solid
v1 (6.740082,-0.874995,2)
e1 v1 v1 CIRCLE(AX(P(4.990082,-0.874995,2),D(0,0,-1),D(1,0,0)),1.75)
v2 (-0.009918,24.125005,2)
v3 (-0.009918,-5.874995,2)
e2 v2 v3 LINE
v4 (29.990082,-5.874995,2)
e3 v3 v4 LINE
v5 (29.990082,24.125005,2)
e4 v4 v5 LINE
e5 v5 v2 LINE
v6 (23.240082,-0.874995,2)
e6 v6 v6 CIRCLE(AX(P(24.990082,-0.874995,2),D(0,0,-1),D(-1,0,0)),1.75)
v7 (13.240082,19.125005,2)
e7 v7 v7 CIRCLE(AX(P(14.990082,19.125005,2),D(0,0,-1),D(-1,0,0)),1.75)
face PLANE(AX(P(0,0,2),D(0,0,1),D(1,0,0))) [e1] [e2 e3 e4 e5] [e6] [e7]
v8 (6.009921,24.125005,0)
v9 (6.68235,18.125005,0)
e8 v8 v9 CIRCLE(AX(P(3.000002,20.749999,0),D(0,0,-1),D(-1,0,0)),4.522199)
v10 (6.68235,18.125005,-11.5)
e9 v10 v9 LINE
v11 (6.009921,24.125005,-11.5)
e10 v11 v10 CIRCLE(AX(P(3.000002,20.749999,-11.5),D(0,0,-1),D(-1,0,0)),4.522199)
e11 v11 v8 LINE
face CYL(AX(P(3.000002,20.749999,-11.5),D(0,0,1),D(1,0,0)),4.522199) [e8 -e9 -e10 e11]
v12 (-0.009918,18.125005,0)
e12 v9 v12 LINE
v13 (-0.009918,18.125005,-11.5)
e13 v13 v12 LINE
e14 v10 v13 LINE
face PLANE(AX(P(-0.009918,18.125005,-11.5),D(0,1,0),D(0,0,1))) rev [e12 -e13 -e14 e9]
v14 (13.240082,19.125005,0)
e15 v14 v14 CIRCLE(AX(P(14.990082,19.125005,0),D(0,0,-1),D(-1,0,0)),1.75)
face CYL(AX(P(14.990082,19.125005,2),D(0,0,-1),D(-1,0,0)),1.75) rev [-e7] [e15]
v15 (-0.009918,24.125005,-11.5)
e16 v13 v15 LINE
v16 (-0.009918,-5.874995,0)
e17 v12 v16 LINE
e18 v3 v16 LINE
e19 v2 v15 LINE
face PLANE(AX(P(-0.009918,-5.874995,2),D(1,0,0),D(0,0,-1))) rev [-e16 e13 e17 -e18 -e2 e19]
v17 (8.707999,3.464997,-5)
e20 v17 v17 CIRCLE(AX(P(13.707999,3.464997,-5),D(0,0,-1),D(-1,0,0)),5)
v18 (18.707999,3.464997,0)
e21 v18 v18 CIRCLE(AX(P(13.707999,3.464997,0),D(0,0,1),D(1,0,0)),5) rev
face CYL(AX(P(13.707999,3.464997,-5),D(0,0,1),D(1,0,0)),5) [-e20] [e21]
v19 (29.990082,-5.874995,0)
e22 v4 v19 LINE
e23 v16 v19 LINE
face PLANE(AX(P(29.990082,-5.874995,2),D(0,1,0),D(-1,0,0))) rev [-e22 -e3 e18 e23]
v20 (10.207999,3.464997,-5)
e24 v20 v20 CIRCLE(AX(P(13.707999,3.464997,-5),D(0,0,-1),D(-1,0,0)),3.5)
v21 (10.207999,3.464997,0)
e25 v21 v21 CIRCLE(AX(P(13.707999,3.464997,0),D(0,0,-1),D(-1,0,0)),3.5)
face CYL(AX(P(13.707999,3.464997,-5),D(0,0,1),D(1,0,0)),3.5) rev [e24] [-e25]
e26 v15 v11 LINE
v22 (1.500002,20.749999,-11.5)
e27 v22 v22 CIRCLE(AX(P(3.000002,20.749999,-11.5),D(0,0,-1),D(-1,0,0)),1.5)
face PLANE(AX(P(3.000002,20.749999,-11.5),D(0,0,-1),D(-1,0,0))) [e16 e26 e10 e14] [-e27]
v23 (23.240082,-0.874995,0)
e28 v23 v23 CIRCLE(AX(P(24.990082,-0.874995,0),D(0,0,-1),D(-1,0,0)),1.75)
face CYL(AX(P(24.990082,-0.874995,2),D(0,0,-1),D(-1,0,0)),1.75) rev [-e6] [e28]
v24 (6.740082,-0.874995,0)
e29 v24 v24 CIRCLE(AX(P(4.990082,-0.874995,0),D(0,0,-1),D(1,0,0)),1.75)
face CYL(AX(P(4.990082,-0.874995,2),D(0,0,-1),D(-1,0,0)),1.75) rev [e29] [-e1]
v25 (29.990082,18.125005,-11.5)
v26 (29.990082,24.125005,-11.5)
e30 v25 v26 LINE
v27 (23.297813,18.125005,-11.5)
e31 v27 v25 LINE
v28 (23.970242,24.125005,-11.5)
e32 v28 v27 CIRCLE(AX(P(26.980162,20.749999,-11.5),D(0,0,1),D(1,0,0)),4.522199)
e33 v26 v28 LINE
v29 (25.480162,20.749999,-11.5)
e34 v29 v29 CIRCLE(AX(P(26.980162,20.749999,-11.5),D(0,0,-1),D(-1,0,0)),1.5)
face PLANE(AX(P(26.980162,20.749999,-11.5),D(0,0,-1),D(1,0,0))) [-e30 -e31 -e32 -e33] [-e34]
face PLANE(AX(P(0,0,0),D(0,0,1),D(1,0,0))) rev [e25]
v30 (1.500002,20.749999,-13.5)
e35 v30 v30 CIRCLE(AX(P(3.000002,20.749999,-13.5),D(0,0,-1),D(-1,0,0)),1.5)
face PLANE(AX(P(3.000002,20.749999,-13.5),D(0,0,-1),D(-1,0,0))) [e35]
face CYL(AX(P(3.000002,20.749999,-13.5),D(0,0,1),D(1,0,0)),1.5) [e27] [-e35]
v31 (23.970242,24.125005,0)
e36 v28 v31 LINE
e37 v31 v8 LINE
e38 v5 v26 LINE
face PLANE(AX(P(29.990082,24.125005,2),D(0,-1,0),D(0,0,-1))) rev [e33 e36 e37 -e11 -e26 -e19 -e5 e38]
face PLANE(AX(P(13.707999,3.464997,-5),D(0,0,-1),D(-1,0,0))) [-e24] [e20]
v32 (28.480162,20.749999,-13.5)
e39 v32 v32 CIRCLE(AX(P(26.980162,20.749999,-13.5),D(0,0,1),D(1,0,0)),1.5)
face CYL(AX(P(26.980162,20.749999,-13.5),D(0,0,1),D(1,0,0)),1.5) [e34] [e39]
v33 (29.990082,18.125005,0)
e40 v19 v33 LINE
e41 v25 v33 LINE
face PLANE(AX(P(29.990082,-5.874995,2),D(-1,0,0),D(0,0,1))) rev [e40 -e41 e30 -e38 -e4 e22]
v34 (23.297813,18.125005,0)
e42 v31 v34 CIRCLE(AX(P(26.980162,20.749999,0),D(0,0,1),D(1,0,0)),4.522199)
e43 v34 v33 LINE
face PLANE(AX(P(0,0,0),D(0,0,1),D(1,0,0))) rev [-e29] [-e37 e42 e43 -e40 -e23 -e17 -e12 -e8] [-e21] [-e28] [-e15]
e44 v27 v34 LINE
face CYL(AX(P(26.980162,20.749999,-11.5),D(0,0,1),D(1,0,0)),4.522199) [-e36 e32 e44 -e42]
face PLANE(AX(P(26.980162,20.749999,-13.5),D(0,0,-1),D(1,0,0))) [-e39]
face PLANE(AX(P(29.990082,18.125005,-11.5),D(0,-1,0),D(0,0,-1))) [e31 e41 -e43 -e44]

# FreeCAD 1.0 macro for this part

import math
import FreeCAD as App
import Part
import Sketcher
from FreeCAD import Vector
Q = App.Units.Quantity

doc = App.newDocument("Part")
params = doc.addObject("Spreadsheet::Sheet", "Params")
for row, (alias, value) in enumerate([
    ("sketch1_width", "30 mm"),
    ("pad1_length", "2 mm"),
    ("sketch2_height", "6 mm"),
    ("pad2_length", "11.5 mm"),
    ("sketch3_diameter", "3 mm"),
    ("pad3_length", "2 mm"),
    ("sketch4_diameter", "10 mm"),
    ("sketch4_diameter2", "7 mm"),
    ("pad4_length", "5 mm"),
    ("sketch5_diameter", "3.5 mm"),
], start=1):
    params.set(f"A{row}", alias)
    params.set(f"B{row}", "=" + value)
    params.setAlias(f"B{row}", alias)

body = doc.addObject("PartDesign::Body", "Body")

# Sketch on XY plane
sketch1 = doc.addObject("Sketcher::SketchObject", "Sketch")
body.addObject(sketch1)
sketch1.AttachmentSupport = (doc.XY_Plane, [""])
sketch1.MapMode = "FlatFace"
sketch1.addGeometry(Part.LineSegment(Vector(0, 24, 0), Vector(0, -6, 0)), False)
sketch1.addGeometry(Part.LineSegment(Vector(0, -6, 0), Vector(30, -6, 0)), False)
sketch1.addGeometry(Part.LineSegment(Vector(30, -6, 0), Vector(30, 24, 0)), False)
sketch1.addGeometry(Part.LineSegment(Vector(30, 24, 0), Vector(0, 24, 0)), False)
sketch1.addConstraint(Sketcher.Constraint("Coincident", 0, 2, 1, 1))
sketch1.addConstraint(Sketcher.Constraint("Coincident", 1, 2, 2, 1))
sketch1.addConstraint(Sketcher.Constraint("Coincident", 2, 2, 3, 1))
sketch1.addConstraint(Sketcher.Constraint("Coincident", 3, 2, 0, 1))
sketch1.addConstraint(Sketcher.Constraint("Vertical", 0))
sketch1.addConstraint(Sketcher.Constraint("Horizontal", 1))
sketch1.addConstraint(Sketcher.Constraint("Vertical", 2))
sketch1.addConstraint(Sketcher.Constraint("Horizontal", 3))
sketch1.addConstraint(Sketcher.Constraint("Equal", 3, 0))
sketch1.addConstraint(Sketcher.Constraint("DistanceX", 1, 1, 1, 2, Q("30 mm")))
sketch1.addConstraint(Sketcher.Constraint("DistanceX", 0, 2, -1, 1, Q("0.009918 mm")))
sketch1.addConstraint(Sketcher.Constraint("DistanceY", 0, 2, -1, 1, Q("5.874995 mm")))
sketch1.setExpression("Constraints[9]", "Params.sketch1_width")
pad1 = doc.addObject("PartDesign::Pad", "Pad")
body.addObject(pad1)
pad1.Profile = sketch1
pad1.setExpression("Length", "Params.pad1_length")

# Sketch on XY plane
sketch2 = doc.addObject("Sketcher::SketchObject", "Sketch001")
body.addObject(sketch2)
sketch2.AttachmentSupport = (doc.XY_Plane, [""])
sketch2.MapMode = "FlatFace"
sketch2.addGeometry(Part.LineSegment(Vector(0, 18.1, 0), Vector(0, 24.1, 0)), False)
sketch2.addGeometry(Part.LineSegment(Vector(0, 24.1, 0), Vector(6, 24.1, 0)), False)
sketch2.addGeometry(Part.ArcOfCircle(Part.Circle(Vector(3, 20.7, 0), Vector(0, 0, 1), 4.5), math.radians(-35), math.radians(48)), False)
sketch2.addGeometry(Part.LineSegment(Vector(6.7, 18.1, 0), Vector(0, 18.1, 0)), False)
sketch2.addConstraint(Sketcher.Constraint("Coincident", 0, 2, 1, 1))
sketch2.addConstraint(Sketcher.Constraint("Coincident", 1, 2, 2, 2))
sketch2.addConstraint(Sketcher.Constraint("Coincident", 2, 1, 3, 1))
sketch2.addConstraint(Sketcher.Constraint("Coincident", 3, 2, 0, 1))
sketch2.addConstraint(Sketcher.Constraint("Vertical", 0))
sketch2.addConstraint(Sketcher.Constraint("Horizontal", 1))
sketch2.addConstraint(Sketcher.Constraint("Horizontal", 3))
sketch2.addConstraint(Sketcher.Constraint("DistanceY", 0, 1, 0, 2, Q("6 mm")))
sketch2.addConstraint(Sketcher.Constraint("DistanceX", -1, 1, 2, 3, Q("3.000002 mm")))
sketch2.addConstraint(Sketcher.Constraint("Radius", 2, Q("4.522199 mm")))
sketch2.addConstraint(Sketcher.Constraint("DistanceY", -1, 1, 2, 3, Q("20.749999 mm")))
sketch2.addConstraint(Sketcher.Constraint("DistanceX", 1, 1, 1, 2, Q("6.01984 mm")))
sketch2.addConstraint(Sketcher.Constraint("DistanceX", 3, 2, 3, 1, Q("6.692268 mm")))
sketch2.setExpression("Constraints[7]", "Params.sketch2_height")
pad2 = doc.addObject("PartDesign::Pad", "Pad001")
body.addObject(pad2)
pad2.Profile = sketch2
pad2.setExpression("Length", "Params.pad2_length")
pad2.Reversed = True

# Sketch on XY plane
sketch3 = doc.addObject("Sketcher::SketchObject", "Sketch002")
body.addObject(sketch3)
sketch3.AttachmentSupport = (doc.XY_Plane, [""])
sketch3.MapMode = "FlatFace"
sketch3.AttachmentOffset = App.Placement(Vector(0, 0, -11.5), App.Rotation())
sketch3.addGeometry(Part.Circle(Vector(3, 20.7, 0), Vector(0, 0, 1), 1.5), False)
sketch3.addConstraint(Sketcher.Constraint("Diameter", 0, Q("3 mm")))
sketch3.addConstraint(Sketcher.Constraint("DistanceX", -1, 1, 0, 3, Q("3.000002 mm")))
sketch3.addConstraint(Sketcher.Constraint("DistanceY", -1, 1, 0, 3, Q("20.749999 mm")))
sketch3.setExpression("Constraints[0]", "Params.sketch3_diameter")
pad3 = doc.addObject("PartDesign::Pad", "Pad002")
body.addObject(pad3)
pad3.Profile = sketch3
pad3.setExpression("Length", "Params.pad3_length")
pad3.Reversed = True
doc.recompute()

datumplane = doc.addObject("PartDesign::Plane", "DatumPlane")
body.addObject(datumplane)
datumplane.AttachmentSupport = (doc.YZ_Plane, [""])
datumplane.MapMode = "FlatFace"
datumplane.AttachmentOffset = App.Placement(Vector(0, 0, 14.990082), App.Rotation())
mirrored = doc.addObject("PartDesign::Mirrored", "Mirrored")
body.addObject(mirrored)
mirrored.Originals = [pad2, pad3]
mirrored.MirrorPlane = (datumplane, [""])
body.Tip = mirrored

# Sketch on XY plane
sketch4 = doc.addObject("Sketcher::SketchObject", "Sketch003")
body.addObject(sketch4)
sketch4.AttachmentSupport = (doc.XY_Plane, [""])
sketch4.MapMode = "FlatFace"
sketch4.addGeometry(Part.Circle(Vector(13.7, 3.5, 0), Vector(0, 0, 1), 5), False)
sketch4.addGeometry(Part.Circle(Vector(13.7, 3.5, 0), Vector(0, 0, 1), 3.5), False)
sketch4.addConstraint(Sketcher.Constraint("Coincident", 1, 3, 0, 3))
sketch4.addConstraint(Sketcher.Constraint("Diameter", 0, Q("10 mm")))
sketch4.addConstraint(Sketcher.Constraint("Diameter", 1, Q("7 mm")))
sketch4.addConstraint(Sketcher.Constraint("DistanceX", -1, 1, 0, 3, Q("13.707999 mm")))
sketch4.addConstraint(Sketcher.Constraint("DistanceY", -1, 1, 0, 3, Q("3.464997 mm")))
sketch4.setExpression("Constraints[1]", "Params.sketch4_diameter")
sketch4.setExpression("Constraints[2]", "Params.sketch4_diameter2")
pad4 = doc.addObject("PartDesign::Pad", "Pad003")
body.addObject(pad4)
pad4.Profile = sketch4
pad4.setExpression("Length", "Params.pad4_length")
pad4.Reversed = True

# Sketch on XY plane
sketch5 = doc.addObject("Sketcher::SketchObject", "Sketch004")
body.addObject(sketch5)
sketch5.AttachmentSupport = (doc.XY_Plane, [""])
sketch5.MapMode = "FlatFace"
sketch5.addGeometry(Part.Circle(Vector(25, -0.9, 0), Vector(0, 0, 1), 1.8), False)
sketch5.addGeometry(Part.Circle(Vector(5, -0.9, 0), Vector(0, 0, 1), 1.8), False)
sketch5.addGeometry(Part.Circle(Vector(15, 19.1, 0), Vector(0, 0, 1), 1.8), False)
sketch5.addConstraint(Sketcher.Constraint("Equal", 0, 1))
sketch5.addConstraint(Sketcher.Constraint("Equal", 1, 2))
sketch5.addConstraint(Sketcher.Constraint("Horizontal", 0, 3, 1, 3))
sketch5.addConstraint(Sketcher.Constraint("Diameter", 0, Q("3.5 mm")))
sketch5.addConstraint(Sketcher.Constraint("DistanceX", 1, 3, 0, 3, Q("20 mm")))
sketch5.addConstraint(Sketcher.Constraint("DistanceX", 2, 3, 0, 3, Q("10 mm")))
sketch5.addConstraint(Sketcher.Constraint("DistanceY", 0, 3, 2, 3, Q("20 mm")))
sketch5.addConstraint(Sketcher.Constraint("DistanceX", -1, 1, 0, 3, Q("24.990082 mm")))
sketch5.addConstraint(Sketcher.Constraint("DistanceY", 0, 3, -1, 1, Q("0.874995 mm")))
sketch5.setExpression("Constraints[3]", "Params.sketch5_diameter")
pocket1 = doc.addObject("PartDesign::Pocket", "Pocket")
body.addObject(pocket1)
pocket1.Profile = sketch5
pocket1.Type = "ThroughAll"
pocket1.Reversed = True

doc.recompute()
